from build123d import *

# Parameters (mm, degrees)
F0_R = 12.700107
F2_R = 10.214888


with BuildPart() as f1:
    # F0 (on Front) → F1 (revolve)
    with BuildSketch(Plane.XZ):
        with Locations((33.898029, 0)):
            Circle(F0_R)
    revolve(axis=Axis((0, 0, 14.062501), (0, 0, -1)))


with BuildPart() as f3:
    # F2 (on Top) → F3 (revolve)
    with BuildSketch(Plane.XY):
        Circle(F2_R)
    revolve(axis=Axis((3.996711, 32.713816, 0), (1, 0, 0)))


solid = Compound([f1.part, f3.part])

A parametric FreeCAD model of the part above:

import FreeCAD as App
import Part
import Sketcher
from FreeCAD import Vector

doc = App.newDocument("Part")
params = doc.addObject("Spreadsheet::Sheet", "Params")
for row, (alias, value) in enumerate([
    ("revolution_angle", "360 deg"),
    ("sketch2_width", "10 mm"),
    ("revolution2_angle", "360 deg"),
], start=1):
    params.set(f"A{row}", alias)
    params.set(f"B{row}", "=" + value)
    params.setAlias(f"B{row}", alias)

body = doc.addObject("PartDesign::Body", "Body")

sketch1 = body.newObject("Sketcher::SketchObject", "Sketch")
sketch1.AttachmentSupport = (doc.getObject("XZ_Plane"), [""])
sketch1.MapMode = "FlatFace"
sketch1.addGeometry(Part.Circle(Vector(34, 0, 0), Vector(0, 0, 1), 13), False)
sketch1.addConstraint(Sketcher.Constraint("PointOnObject", 0, 3, -1))
sketch1.addConstraint(Sketcher.Constraint("Diameter", 0, 25.400214))
sketch1.addConstraint(Sketcher.Constraint("DistanceX", -1, 1, 0, 3, 33.898029))
revolution = body.newObject("PartDesign::Revolution", "Revolution")
revolution.Profile = sketch1
revolution.ReferenceAxis = (sketch1, ["V_Axis"])
revolution.setExpression("Angle", "Params.revolution_angle")
body2 = doc.addObject("PartDesign::Body", "Body001")

sketch2 = body2.newObject("Sketcher::SketchObject", "Sketch001")
sketch2.AttachmentSupport = (doc.getObject("XY_Plane001"), [""])
sketch2.MapMode = "FlatFace"
sketch2.addGeometry(Part.Circle(Vector(0, 0, 0), Vector(0, 0, 1), 10), False)
sketch2.addGeometry(Part.LineSegment(Vector(0, 33, 0), Vector(10, 33, 0)), True)
sketch2.addConstraint(Sketcher.Constraint("Horizontal", 1))
sketch2.addConstraint(Sketcher.Constraint("Coincident", 0, 3, -1, 1))
sketch2.addConstraint(Sketcher.Constraint("PointOnObject", 1, 1, -2))
sketch2.addConstraint(Sketcher.Constraint("DistanceX", 1, 1, 1, 2, 10.0))
sketch2.addConstraint(Sketcher.Constraint("Diameter", 0, 20.429776))
sketch2.addConstraint(Sketcher.Constraint("DistanceY", -1, 1, 1, 1, 32.713816))
sketch2.setExpression("Constraints[3]", "Params.sketch2_width")
revolution2 = body2.newObject("PartDesign::Revolution", "Revolution001")
revolution2.Profile = sketch2
revolution2.ReferenceAxis = (sketch2, ["Axis0"])
revolution2.setExpression("Angle", "Params.revolution2_angle")

doc.recompute()
